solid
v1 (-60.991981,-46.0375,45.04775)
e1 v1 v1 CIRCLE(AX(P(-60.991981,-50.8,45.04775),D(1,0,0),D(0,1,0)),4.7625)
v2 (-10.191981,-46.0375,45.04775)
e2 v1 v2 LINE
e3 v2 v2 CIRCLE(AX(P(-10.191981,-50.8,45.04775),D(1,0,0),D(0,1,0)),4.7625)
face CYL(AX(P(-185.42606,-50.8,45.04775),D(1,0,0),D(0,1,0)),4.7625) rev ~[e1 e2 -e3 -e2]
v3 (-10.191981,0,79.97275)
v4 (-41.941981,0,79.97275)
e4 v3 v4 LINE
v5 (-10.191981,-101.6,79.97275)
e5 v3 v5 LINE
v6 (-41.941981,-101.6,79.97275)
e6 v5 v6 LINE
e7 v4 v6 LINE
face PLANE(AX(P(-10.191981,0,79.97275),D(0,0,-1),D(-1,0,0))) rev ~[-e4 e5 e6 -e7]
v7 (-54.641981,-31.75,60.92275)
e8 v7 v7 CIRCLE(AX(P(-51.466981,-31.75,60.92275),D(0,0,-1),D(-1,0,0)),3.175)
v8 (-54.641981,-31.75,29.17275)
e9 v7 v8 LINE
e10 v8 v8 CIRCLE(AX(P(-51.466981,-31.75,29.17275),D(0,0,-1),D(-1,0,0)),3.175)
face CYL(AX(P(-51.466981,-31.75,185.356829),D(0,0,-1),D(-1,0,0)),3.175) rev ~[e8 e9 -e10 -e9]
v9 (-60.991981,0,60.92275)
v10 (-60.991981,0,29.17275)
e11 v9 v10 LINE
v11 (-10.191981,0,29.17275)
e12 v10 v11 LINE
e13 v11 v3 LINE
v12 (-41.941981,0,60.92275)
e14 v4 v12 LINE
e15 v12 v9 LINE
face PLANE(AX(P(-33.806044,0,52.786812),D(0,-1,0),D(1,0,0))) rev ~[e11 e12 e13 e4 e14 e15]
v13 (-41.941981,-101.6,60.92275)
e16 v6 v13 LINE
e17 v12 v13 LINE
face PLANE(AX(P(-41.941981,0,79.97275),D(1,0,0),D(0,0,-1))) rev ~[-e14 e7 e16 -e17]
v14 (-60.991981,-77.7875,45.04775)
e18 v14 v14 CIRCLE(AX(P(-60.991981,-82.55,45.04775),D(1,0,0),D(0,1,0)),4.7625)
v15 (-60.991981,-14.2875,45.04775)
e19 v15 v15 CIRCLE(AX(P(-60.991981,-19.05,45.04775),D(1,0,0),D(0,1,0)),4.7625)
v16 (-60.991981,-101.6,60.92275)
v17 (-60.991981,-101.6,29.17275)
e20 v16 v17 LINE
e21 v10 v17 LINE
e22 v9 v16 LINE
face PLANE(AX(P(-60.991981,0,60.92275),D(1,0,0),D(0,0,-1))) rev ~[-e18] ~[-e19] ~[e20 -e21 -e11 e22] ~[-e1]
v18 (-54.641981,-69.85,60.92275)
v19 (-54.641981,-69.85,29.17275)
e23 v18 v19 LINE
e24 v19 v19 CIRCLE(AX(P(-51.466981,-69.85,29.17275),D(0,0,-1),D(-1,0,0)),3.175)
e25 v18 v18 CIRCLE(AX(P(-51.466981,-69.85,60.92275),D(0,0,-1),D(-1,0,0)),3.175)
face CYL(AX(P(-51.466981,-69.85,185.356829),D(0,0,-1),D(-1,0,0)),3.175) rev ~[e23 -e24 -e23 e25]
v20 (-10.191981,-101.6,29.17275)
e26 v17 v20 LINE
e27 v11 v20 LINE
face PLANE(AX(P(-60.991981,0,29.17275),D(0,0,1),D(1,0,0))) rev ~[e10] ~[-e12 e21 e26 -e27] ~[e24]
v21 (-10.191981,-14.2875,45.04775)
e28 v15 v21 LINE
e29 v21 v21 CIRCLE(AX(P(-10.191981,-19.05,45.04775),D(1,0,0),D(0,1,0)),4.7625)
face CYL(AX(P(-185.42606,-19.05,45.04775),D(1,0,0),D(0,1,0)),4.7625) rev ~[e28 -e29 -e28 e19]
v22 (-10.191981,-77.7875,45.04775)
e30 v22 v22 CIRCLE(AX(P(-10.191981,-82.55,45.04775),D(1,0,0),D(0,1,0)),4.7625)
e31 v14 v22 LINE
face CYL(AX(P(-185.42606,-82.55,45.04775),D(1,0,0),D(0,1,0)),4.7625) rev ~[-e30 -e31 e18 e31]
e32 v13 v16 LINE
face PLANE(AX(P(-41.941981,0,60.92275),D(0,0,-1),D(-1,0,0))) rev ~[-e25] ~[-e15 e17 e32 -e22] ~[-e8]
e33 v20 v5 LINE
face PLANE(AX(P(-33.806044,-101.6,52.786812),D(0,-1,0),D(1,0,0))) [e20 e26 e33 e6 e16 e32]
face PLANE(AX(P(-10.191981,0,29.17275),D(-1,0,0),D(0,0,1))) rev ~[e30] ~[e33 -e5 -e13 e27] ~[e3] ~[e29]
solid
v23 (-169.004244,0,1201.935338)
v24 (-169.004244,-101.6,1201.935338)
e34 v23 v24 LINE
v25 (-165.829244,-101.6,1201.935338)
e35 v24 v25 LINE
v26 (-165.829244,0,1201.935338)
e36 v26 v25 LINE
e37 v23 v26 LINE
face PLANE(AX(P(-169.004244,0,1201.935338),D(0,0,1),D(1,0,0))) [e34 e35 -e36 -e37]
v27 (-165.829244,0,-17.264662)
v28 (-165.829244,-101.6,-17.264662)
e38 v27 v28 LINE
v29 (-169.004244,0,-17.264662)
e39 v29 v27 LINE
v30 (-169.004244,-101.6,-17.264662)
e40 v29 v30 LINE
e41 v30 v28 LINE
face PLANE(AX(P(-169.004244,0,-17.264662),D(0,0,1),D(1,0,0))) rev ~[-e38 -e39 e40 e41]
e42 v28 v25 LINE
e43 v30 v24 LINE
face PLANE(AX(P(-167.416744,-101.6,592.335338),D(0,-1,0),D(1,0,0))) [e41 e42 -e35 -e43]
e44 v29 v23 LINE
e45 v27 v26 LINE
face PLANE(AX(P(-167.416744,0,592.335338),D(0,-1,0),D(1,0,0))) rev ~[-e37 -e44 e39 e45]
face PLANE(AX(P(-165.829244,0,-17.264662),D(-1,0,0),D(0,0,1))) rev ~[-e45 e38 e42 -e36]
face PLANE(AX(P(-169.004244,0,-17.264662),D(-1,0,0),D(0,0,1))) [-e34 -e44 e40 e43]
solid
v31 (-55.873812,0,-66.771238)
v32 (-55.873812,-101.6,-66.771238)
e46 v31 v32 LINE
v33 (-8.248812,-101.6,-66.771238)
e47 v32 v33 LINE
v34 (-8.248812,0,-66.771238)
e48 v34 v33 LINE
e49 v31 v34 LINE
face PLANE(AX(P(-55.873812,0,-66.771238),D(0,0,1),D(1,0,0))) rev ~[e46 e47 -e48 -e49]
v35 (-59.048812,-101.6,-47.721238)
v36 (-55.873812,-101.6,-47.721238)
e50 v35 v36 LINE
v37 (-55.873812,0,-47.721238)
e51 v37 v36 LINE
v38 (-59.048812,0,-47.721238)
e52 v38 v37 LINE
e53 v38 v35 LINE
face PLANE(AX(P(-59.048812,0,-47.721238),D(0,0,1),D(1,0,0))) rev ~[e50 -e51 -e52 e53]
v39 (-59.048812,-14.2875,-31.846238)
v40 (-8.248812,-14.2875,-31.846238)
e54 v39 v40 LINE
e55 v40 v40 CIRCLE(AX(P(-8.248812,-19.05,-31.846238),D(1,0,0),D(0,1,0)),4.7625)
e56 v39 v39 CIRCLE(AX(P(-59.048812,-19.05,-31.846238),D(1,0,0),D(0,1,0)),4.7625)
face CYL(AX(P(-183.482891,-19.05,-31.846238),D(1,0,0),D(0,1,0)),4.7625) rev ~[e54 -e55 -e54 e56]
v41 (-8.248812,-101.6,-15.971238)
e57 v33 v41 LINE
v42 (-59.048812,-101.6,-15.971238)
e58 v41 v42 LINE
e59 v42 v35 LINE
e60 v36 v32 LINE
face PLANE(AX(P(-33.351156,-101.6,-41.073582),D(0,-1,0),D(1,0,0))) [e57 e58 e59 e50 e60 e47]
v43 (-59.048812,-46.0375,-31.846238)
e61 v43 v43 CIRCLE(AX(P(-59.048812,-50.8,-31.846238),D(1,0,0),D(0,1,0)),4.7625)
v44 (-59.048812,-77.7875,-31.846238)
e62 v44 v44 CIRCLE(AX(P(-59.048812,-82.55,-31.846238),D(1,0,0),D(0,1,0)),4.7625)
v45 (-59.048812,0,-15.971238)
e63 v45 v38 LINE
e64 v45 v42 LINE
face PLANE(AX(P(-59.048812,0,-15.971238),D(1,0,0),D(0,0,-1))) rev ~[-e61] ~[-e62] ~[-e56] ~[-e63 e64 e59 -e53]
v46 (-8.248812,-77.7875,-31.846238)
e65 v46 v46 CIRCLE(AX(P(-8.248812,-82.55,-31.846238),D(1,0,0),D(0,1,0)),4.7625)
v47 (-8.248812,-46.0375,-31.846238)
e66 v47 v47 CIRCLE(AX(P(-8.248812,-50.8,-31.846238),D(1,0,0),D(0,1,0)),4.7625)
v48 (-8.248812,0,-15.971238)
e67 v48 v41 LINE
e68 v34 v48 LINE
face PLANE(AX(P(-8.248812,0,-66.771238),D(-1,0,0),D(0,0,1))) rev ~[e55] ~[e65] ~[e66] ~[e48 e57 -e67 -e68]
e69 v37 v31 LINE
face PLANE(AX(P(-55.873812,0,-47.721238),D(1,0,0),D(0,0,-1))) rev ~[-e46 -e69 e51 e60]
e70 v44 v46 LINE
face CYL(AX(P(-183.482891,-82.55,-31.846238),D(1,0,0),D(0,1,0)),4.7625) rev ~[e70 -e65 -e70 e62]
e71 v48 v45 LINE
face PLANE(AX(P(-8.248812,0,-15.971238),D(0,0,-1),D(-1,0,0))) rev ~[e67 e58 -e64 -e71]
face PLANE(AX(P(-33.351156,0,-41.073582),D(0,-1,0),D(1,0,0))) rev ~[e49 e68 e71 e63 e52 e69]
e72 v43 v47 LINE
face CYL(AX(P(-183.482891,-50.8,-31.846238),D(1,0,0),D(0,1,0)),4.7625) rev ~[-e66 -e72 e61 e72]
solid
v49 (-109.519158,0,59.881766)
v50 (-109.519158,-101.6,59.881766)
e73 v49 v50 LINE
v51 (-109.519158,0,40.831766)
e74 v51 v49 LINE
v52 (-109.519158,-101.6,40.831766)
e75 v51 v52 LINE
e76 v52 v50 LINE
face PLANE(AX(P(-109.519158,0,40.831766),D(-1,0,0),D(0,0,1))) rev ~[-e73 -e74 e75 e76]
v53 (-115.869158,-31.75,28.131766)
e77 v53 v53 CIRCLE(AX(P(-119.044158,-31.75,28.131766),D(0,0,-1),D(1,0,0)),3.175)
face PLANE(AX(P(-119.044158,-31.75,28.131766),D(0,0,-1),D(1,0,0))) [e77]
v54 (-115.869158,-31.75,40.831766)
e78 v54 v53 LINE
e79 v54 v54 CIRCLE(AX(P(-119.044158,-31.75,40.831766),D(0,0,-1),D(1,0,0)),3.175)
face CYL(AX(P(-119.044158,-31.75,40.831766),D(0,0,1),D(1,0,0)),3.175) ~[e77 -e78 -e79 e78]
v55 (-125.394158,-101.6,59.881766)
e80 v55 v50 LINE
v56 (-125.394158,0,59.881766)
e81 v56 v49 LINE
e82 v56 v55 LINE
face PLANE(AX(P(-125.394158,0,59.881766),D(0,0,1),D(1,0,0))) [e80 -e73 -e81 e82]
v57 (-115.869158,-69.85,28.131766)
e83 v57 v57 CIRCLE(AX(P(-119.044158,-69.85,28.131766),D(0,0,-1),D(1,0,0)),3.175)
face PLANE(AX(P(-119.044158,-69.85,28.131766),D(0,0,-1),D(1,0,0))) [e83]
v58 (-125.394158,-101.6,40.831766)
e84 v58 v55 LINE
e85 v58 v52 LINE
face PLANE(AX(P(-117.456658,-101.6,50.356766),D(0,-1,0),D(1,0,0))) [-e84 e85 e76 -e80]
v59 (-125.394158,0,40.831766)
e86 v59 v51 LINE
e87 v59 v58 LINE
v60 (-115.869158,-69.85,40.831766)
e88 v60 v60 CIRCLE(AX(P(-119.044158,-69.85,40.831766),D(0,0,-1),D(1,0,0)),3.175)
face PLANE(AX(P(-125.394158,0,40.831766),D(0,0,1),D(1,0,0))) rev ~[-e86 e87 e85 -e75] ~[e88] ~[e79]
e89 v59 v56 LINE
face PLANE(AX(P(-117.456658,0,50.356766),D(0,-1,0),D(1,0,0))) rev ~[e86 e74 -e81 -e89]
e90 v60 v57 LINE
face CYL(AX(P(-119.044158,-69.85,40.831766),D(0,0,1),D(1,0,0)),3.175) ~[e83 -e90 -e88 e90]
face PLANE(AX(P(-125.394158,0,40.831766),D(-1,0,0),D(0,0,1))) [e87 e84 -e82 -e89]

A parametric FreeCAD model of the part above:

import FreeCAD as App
import Part
import Sketcher

V = App.Vector
Q = App.Units.Quantity

doc = App.newDocument("Part")
body = doc.addObject("PartDesign::Body", "Body")

# Sketch on XZ plane
sketch1 = body.newObject("Sketcher::SketchObject", "Sketch")
sketch1.AttachmentSupport = (doc.getObject("XZ_Plane"), [""])
sketch1.MapMode = "FlatFace"
sketch1.addGeometry([
    Part.LineSegment(V(-125, 60, 0), V(-125, 41, 0)),
    Part.LineSegment(V(-125, 41, 0), V(-110, 41, 0)),
    Part.LineSegment(V(-110, 41, 0), V(-110, 60, 0)),
    Part.LineSegment(V(-110, 60, 0), V(-125, 60, 0)),
], False)
sketch1.addConstraint([
    Sketcher.Constraint("Coincident", 0, 2, 1, 1),
    Sketcher.Constraint("Coincident", 1, 2, 2, 1),
    Sketcher.Constraint("Coincident", 2, 2, 3, 1),
    Sketcher.Constraint("Coincident", 3, 2, 0, 1),
    Sketcher.Constraint("Vertical", 0),
    Sketcher.Constraint("Horizontal", 1),
    Sketcher.Constraint("Vertical", 2),
    Sketcher.Constraint("Horizontal", 3),
    Sketcher.Constraint("DistanceY", 0, 2, 0, 1, Q("0.75 in")),
    Sketcher.Constraint("DistanceX", 1, 1, 1, 2, Q("0.625 in")),
    Sketcher.Constraint("DistanceX", 0, 2, -1, 1, Q("125.394158 mm")),
    Sketcher.Constraint("DistanceY", -1, 1, 0, 2, Q("40.831766 mm")),
])
pad1 = body.newObject("PartDesign::Pad", "Pad")
pad1.Profile = sketch1
pad1.Length = Q("4 in")

# Sketch on XY plane
sketch2 = body.newObject("Sketcher::SketchObject", "Sketch001")
sketch2.AttachmentSupport = (doc.getObject("XY_Plane"), [""])
sketch2.MapMode = "FlatFace"
sketch2.AttachmentOffset = App.Placement(V(0, 0, 40.831766), App.Rotation())
sketch2.addGeometry([
    Part.Circle(V(-119, -69.8, 0), V(0, 0, 1), 3.2),
    Part.Circle(V(-119, -31.8, 0), V(0, 0, 1), 3.2),
], False)
sketch2.addConstraint([
    Sketcher.Constraint("Equal", 0, 1),
    Sketcher.Constraint("Vertical", 0, 3, 1, 3),
    Sketcher.Constraint("Diameter", 0, Q("0.25 in")),
    Sketcher.Constraint("DistanceY", 0, 3, 1, 3, Q("1.5 in")),
    Sketcher.Constraint("DistanceY", 0, 3, -1, 1, Q("2.75 in")),
    Sketcher.Constraint("DistanceX", 0, 3, -1, 1, Q("119.044158 mm")),
])
pad2 = body.newObject("PartDesign::Pad", "Pad001")
pad2.Profile = sketch2
pad2.Length = Q("0.5 in")
pad2.Reversed = True
body2 = doc.addObject("PartDesign::Body", "Body001")

# Sketch on XZ plane
sketch3 = body2.newObject("Sketcher::SketchObject", "Sketch002")
sketch3.AttachmentSupport = (doc.getObject("XZ_Plane001"), [""])
sketch3.MapMode = "FlatFace"
sketch3.addGeometry([
    Part.LineSegment(V(-42, 61, 0), V(-61, 61, 0)),  # 0
    Part.LineSegment(V(-61, 61, 0), V(-61, 29, 0)),  # 1
    Part.LineSegment(V(-61, 29, 0), V(-10, 29, 0)),  # 2
    Part.LineSegment(V(-10, 29, 0), V(-10, 80, 0)),  # 3
    Part.LineSegment(V(-10, 80, 0), V(-42, 80, 0)),  # 4
    Part.LineSegment(V(-42, 80, 0), V(-42, 61, 0)),  # 5
], False)
sketch3.addConstraint([
    Sketcher.Constraint("Coincident", 0, 2, 1, 1),
    Sketcher.Constraint("Coincident", 1, 2, 2, 1),
    Sketcher.Constraint("Coincident", 2, 2, 3, 1),
    Sketcher.Constraint("Coincident", 3, 2, 4, 1),
    Sketcher.Constraint("Coincident", 4, 2, 5, 1),
    Sketcher.Constraint("Coincident", 5, 2, 0, 1),
    Sketcher.Constraint("Horizontal", 0),
    Sketcher.Constraint("Vertical", 1),
    Sketcher.Constraint("Horizontal", 2),
    Sketcher.Constraint("Vertical", 3),
    Sketcher.Constraint("Horizontal", 4),
    Sketcher.Constraint("Vertical", 5),
    Sketcher.Constraint("Equal", 4, 1),
    Sketcher.Constraint("Equal", 2, 3),
    Sketcher.Constraint("DistanceX", 2, 1, 2, 2, Q("2 in")),
    Sketcher.Constraint("DistanceX", 0, 2, 0, 1, Q("0.75 in")),
    Sketcher.Constraint("DistanceX", 0, 2, -1, 1, Q("60.991981 mm")),
    Sketcher.Constraint("DistanceY", -1, 1, 0, 2, Q("60.92275 mm")),
])
pad3 = body2.newObject("PartDesign::Pad", "Pad002")
pad3.Profile = sketch3
pad3.Length = Q("4 in")

# Sketch on XY plane
sketch4 = body2.newObject("Sketcher::SketchObject", "Sketch003")
sketch4.AttachmentSupport = (doc.getObject("XY_Plane001"), [""])
sketch4.MapMode = "FlatFace"
sketch4.AttachmentOffset = App.Placement(V(0, 0, 60.92275), App.Rotation())
sketch4.addGeometry([
    Part.Circle(V(-51.5, -31.8, 0), V(0, 0, 1), 3.2),
    Part.Circle(V(-51.5, -69.8, 0), V(0, 0, 1), 3.2),
], False)
sketch4.addConstraint([
    Sketcher.Constraint("Equal", 0, 1),
    Sketcher.Constraint("Vertical", 0, 3, 1, 3),
    Sketcher.Constraint("Diameter", 0, Q("0.25 in")),
    Sketcher.Constraint("DistanceY", 1, 3, 0, 3, Q("1.5 in")),
    Sketcher.Constraint("DistanceY", 0, 3, -1, 1, Q("1.25 in")),
    Sketcher.Constraint("DistanceX", 0, 3, -1, 1, Q("51.466981 mm")),
])
doc.recompute()
hole = body2.newObject("PartDesign::Hole", "Hole")
hole.Profile = sketch4
hole.ThreadType = "None"
hole.Diameter = Q("0.25 in")
hole.DepthType = "ThroughAll"

# Sketch on YZ plane
sketch5 = body2.newObject("Sketcher::SketchObject", "Sketch004")
sketch5.AttachmentSupport = (doc.getObject("YZ_Plane001"), [""])
sketch5.MapMode = "FlatFace"
sketch5.AttachmentOffset = App.Placement(V(0, 0, -60.991981), App.Rotation())
sketch5.addGeometry([
    Part.Circle(V(-19.1, 45, 0), V(0, 0, 1), 4.8),
    Part.Circle(V(-50.8, 45, 0), V(0, 0, 1), 4.8),
    Part.Circle(V(-82.5, 45, 0), V(0, 0, 1), 4.8),
], False)
sketch5.addConstraint([
    Sketcher.Constraint("Equal", 0, 1),
    Sketcher.Constraint("Equal", 1, 2),
    Sketcher.Constraint("Horizontal", 0, 3, 1, 3),
    Sketcher.Constraint("Horizontal", 1, 3, 2, 3),
    Sketcher.Constraint("Diameter", 0, Q("0.375 in")),
    Sketcher.Constraint("DistanceX", 1, 3, -1, 1, Q("2 in")),
    Sketcher.Constraint("DistanceX", 2, 3, 0, 3, Q("2.5 in")),
    Sketcher.Constraint("DistanceX", 0, 3, -1, 1, Q("0.75 in")),
    Sketcher.Constraint("DistanceY", -1, 1, 0, 3, Q("45.04775 mm")),
])
doc.recompute()
hole2 = body2.newObject("PartDesign::Hole", "Hole001")
hole2.Profile = sketch5
hole2.ThreadType = "None"
hole2.Diameter = Q("0.375 in")
hole2.DepthType = "ThroughAll"
hole2.Reversed = True
body3 = doc.addObject("PartDesign::Body", "Body002")

# Sketch on XZ plane
sketch6 = body3.newObject("Sketcher::SketchObject", "Sketch005")
sketch6.AttachmentSupport = (doc.getObject("XZ_Plane002"), [""])
sketch6.MapMode = "FlatFace"
sketch6.addGeometry([
    Part.LineSegment(V(-8.2, -16, 0), V(-59, -16, 0)),  # 0
    Part.LineSegment(V(-59, -16, 0), V(-59, -47.7, 0)),  # 1
    Part.LineSegment(V(-59, -47.7, 0), V(-55.9, -47.7, 0)),  # 2
    Part.LineSegment(V(-55.9, -47.7, 0), V(-55.9, -66.8, 0)),  # 3
    Part.LineSegment(V(-55.9, -66.8, 0), V(-8.2, -66.8, 0)),  # 4
    Part.LineSegment(V(-8.2, -66.8, 0), V(-8.2, -16, 0)),  # 5
], False)
sketch6.addConstraint([
    Sketcher.Constraint("Coincident", 0, 2, 1, 1),
    Sketcher.Constraint("Coincident", 1, 2, 2, 1),
    Sketcher.Constraint("Coincident", 2, 2, 3, 1),
    Sketcher.Constraint("Coincident", 3, 2, 4, 1),
    Sketcher.Constraint("Coincident", 4, 2, 5, 1),
    Sketcher.Constraint("Coincident", 5, 2, 0, 1),
    Sketcher.Constraint("Horizontal", 0),
    Sketcher.Constraint("Vertical", 1),
    Sketcher.Constraint("Horizontal", 2),
    Sketcher.Constraint("Vertical", 3),
    Sketcher.Constraint("Horizontal", 4),
    Sketcher.Constraint("Vertical", 5),
    Sketcher.Constraint("Equal", 0, 5),
    Sketcher.Constraint("DistanceX", 0, 2, 0, 1, Q("2 in")),
    Sketcher.Constraint("DistanceY", 1, 2, 1, 1, Q("1.25 in")),
    Sketcher.Constraint("DistanceX", 2, 1, 2, 2, Q("0.125 in")),
    Sketcher.Constraint("DistanceY", 0, 2, -1, 1, Q("15.971238 mm")),
    Sketcher.Constraint("DistanceX", 0, 2, -1, 1, Q("59.048812 mm")),
])
pad4 = body3.newObject("PartDesign::Pad", "Pad003")
pad4.Profile = sketch6
pad4.Length = Q("4 in")

# Sketch on YZ plane
sketch7 = body3.newObject("Sketcher::SketchObject", "Sketch006")
sketch7.AttachmentSupport = (doc.getObject("YZ_Plane002"), [""])
sketch7.MapMode = "FlatFace"
sketch7.AttachmentOffset = App.Placement(V(0, 0, -59.048812), App.Rotation())
sketch7.addGeometry([
    Part.Circle(V(-19.1, -31.8, 0), V(0, 0, 1), 4.8),
    Part.Circle(V(-50.8, -31.8, 0), V(0, 0, 1), 4.8),
    Part.Circle(V(-82.5, -31.8, 0), V(0, 0, 1), 4.8),
], False)
sketch7.addConstraint([
    Sketcher.Constraint("Equal", 0, 1),
    Sketcher.Constraint("Equal", 1, 2),
    Sketcher.Constraint("Horizontal", 0, 3, 1, 3),
    Sketcher.Constraint("Horizontal", 1, 3, 2, 3),
    Sketcher.Constraint("Diameter", 0, Q("0.375 in")),
    Sketcher.Constraint("DistanceX", 1, 3, -1, 1, Q("2 in")),
    Sketcher.Constraint("DistanceX", 2, 3, 0, 3, Q("2.5 in")),
    Sketcher.Constraint("DistanceX", 0, 3, -1, 1, Q("0.75 in")),
    Sketcher.Constraint("DistanceY", 0, 3, -1, 1, Q("31.846238 mm")),
])
doc.recompute()
hole3 = body3.newObject("PartDesign::Hole", "Hole002")
hole3.Profile = sketch7
hole3.ThreadType = "None"
hole3.Diameter = Q("0.375 in")
hole3.DepthType = "ThroughAll"
hole3.Reversed = True
body4 = doc.addObject("PartDesign::Body", "Body003")

# Sketch on XZ plane
sketch8 = body4.newObject("Sketcher::SketchObject", "Sketch007")
sketch8.AttachmentSupport = (doc.getObject("XZ_Plane003"), [""])
sketch8.MapMode = "FlatFace"
sketch8.addGeometry([
    Part.LineSegment(V(-169, 1201.9, 0), V(-169, -17.3, 0)),
    Part.LineSegment(V(-169, -17.3, 0), V(-165.8, -17.3, 0)),
    Part.LineSegment(V(-165.8, -17.3, 0), V(-165.8, 1201.9, 0)),
    Part.LineSegment(V(-165.8, 1201.9, 0), V(-169, 1201.9, 0)),
], False)
sketch8.addConstraint([
    Sketcher.Constraint("Coincident", 0, 2, 1, 1),
    Sketcher.Constraint("Coincident", 1, 2, 2, 1),
    Sketcher.Constraint("Coincident", 2, 2, 3, 1),
    Sketcher.Constraint("Coincident", 3, 2, 0, 1),
    Sketcher.Constraint("Vertical", 0),
    Sketcher.Constraint("Horizontal", 1),
    Sketcher.Constraint("Vertical", 2),
    Sketcher.Constraint("Horizontal", 3),
    Sketcher.Constraint("DistanceY", 0, 2, 0, 1, Q("48 in")),
    Sketcher.Constraint("DistanceX", 1, 1, 1, 2, Q("0.125 in")),
    Sketcher.Constraint("DistanceX", 0, 2, -1, 1, Q("169.004244 mm")),
    Sketcher.Constraint("DistanceY", 0, 2, -1, 1, Q("17.264662 mm")),
])
pad5 = body4.newObject("PartDesign::Pad", "Pad004")
pad5.Profile = sketch8
pad5.Length = Q("4 in")

doc.recompute()
